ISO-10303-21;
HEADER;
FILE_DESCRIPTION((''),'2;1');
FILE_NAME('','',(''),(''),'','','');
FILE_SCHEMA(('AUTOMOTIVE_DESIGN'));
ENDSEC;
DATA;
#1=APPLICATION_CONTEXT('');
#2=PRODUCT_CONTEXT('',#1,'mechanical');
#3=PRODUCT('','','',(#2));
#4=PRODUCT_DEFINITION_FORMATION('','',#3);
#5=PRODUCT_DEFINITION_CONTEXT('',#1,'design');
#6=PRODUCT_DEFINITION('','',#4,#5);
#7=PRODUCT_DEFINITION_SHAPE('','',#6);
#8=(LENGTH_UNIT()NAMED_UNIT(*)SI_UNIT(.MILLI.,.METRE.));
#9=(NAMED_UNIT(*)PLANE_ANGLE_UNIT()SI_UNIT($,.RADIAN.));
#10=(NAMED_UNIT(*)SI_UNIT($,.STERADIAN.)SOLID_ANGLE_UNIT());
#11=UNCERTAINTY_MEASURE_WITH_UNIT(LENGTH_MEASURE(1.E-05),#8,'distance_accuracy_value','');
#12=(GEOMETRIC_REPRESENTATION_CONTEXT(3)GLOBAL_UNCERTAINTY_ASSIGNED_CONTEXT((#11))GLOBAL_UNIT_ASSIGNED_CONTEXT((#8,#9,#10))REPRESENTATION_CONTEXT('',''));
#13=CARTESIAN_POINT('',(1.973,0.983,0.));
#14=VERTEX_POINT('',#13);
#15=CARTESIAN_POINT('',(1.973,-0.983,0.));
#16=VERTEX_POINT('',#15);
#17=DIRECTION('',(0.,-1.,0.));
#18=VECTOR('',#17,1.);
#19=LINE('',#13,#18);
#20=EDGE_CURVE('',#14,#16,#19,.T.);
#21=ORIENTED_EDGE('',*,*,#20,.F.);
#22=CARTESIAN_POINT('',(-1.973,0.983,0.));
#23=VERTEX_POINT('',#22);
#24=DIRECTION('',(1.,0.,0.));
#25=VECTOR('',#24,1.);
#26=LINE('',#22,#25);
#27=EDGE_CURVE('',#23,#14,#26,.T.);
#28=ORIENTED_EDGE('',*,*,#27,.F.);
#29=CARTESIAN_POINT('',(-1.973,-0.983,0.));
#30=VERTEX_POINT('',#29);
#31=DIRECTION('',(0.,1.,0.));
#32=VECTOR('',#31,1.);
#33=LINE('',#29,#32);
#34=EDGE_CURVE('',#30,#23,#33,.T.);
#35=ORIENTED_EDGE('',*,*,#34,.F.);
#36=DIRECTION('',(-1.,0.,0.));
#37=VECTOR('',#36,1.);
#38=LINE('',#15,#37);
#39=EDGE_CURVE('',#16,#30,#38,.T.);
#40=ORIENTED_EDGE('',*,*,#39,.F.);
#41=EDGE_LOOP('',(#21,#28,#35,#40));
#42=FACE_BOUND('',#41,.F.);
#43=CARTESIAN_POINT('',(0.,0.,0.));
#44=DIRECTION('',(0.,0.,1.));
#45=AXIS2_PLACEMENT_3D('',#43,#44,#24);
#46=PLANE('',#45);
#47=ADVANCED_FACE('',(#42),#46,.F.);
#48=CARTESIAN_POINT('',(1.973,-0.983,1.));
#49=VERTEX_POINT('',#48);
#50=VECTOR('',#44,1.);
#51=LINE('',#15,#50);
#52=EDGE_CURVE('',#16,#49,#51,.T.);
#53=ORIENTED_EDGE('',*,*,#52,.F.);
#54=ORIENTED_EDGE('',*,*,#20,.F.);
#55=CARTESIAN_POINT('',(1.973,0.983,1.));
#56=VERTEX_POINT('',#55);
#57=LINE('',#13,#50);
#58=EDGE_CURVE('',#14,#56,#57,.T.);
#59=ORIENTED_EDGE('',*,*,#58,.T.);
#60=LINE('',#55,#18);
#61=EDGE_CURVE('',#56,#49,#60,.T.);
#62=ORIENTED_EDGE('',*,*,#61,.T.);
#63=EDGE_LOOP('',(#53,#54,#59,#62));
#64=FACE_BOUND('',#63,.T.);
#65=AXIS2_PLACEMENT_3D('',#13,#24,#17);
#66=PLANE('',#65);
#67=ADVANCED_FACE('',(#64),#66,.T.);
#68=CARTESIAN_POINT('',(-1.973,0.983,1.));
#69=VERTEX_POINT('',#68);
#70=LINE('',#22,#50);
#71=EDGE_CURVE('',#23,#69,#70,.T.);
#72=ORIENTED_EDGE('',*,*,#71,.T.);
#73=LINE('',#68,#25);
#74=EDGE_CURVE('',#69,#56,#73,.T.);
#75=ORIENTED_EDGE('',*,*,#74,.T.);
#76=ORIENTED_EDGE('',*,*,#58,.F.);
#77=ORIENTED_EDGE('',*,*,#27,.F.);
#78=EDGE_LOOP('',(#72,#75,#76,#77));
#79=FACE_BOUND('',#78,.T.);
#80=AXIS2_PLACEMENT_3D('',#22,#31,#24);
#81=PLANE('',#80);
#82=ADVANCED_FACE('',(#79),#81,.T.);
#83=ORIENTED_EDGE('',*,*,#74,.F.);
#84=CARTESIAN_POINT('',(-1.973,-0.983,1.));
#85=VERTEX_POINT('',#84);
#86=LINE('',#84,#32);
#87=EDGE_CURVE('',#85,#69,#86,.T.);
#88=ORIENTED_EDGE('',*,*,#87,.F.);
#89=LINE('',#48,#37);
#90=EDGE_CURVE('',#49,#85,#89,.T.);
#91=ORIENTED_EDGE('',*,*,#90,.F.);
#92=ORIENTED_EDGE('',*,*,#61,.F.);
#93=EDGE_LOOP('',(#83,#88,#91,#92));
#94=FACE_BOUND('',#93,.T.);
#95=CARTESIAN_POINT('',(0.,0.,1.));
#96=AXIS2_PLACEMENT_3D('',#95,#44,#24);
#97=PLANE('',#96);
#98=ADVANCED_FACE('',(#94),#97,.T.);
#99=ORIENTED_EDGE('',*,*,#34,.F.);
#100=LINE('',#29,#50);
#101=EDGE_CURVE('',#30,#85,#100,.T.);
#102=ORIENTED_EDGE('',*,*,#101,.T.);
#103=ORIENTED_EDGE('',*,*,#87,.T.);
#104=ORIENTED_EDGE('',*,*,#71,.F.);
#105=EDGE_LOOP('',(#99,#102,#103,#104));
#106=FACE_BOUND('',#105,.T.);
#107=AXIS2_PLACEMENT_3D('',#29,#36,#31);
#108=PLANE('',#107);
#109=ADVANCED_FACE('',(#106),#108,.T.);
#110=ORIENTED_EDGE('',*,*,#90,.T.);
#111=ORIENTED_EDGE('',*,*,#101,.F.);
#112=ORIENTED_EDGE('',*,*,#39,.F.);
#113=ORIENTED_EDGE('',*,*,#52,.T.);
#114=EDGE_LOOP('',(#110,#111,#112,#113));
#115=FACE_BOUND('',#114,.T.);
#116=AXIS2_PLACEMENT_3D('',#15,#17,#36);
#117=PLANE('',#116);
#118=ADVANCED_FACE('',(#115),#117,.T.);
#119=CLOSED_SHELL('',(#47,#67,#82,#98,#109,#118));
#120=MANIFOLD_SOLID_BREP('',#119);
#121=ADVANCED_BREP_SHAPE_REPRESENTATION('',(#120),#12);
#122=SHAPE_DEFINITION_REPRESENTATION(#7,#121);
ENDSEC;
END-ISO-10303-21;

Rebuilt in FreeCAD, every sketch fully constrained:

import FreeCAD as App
import Part
import Sketcher
Q = App.Units.Quantity


def add_polygon(sketch, points):
    """Adds a closed chain of lines whose ends are joined by coincident constraints."""
    first, n = sketch.GeometryCount, len(points)
    for a, b in zip(points, points[1:] + points[:1]):
        sketch.addGeometry(Part.LineSegment(App.Vector(*a, 0), App.Vector(*b, 0)), False)
    for i in range(n):
        sketch.addConstraint(Sketcher.Constraint("Coincident", first + i, 2, first + (i + 1) % n, 1))

doc = App.newDocument("Part")
body = doc.addObject("PartDesign::Body", "Body")

sketch1 = body.newObject("Sketcher::SketchObject", "Sketch")
sketch1.AttachmentSupport = (doc.getObject("XY_Plane"), [""])
sketch1.MapMode = "FlatFace"
add_polygon(sketch1, [(2, 1), (-2, 1), (-2, -1), (2, -1)])
sketch1.addConstraint(Sketcher.Constraint("Horizontal", 0))
sketch1.addConstraint(Sketcher.Constraint("Vertical", 1))
sketch1.addConstraint(Sketcher.Constraint("Horizontal", 2))
sketch1.addConstraint(Sketcher.Constraint("Vertical", 3))
sketch1.addConstraint(Sketcher.Constraint("Symmetric", 0, 2, 2, 2, -1, 1))
sketch1.addConstraint(Sketcher.Constraint("DistanceX", 0, 2, 0, 1, Q("3.946 mm")))
sketch1.addConstraint(Sketcher.Constraint("DistanceY", 1, 2, 1, 1, Q("1.966 mm")))
pad1 = body.newObject("PartDesign::Pad", "Pad")
pad1.Profile = sketch1
pad1.Length = 1

doc.recompute()
